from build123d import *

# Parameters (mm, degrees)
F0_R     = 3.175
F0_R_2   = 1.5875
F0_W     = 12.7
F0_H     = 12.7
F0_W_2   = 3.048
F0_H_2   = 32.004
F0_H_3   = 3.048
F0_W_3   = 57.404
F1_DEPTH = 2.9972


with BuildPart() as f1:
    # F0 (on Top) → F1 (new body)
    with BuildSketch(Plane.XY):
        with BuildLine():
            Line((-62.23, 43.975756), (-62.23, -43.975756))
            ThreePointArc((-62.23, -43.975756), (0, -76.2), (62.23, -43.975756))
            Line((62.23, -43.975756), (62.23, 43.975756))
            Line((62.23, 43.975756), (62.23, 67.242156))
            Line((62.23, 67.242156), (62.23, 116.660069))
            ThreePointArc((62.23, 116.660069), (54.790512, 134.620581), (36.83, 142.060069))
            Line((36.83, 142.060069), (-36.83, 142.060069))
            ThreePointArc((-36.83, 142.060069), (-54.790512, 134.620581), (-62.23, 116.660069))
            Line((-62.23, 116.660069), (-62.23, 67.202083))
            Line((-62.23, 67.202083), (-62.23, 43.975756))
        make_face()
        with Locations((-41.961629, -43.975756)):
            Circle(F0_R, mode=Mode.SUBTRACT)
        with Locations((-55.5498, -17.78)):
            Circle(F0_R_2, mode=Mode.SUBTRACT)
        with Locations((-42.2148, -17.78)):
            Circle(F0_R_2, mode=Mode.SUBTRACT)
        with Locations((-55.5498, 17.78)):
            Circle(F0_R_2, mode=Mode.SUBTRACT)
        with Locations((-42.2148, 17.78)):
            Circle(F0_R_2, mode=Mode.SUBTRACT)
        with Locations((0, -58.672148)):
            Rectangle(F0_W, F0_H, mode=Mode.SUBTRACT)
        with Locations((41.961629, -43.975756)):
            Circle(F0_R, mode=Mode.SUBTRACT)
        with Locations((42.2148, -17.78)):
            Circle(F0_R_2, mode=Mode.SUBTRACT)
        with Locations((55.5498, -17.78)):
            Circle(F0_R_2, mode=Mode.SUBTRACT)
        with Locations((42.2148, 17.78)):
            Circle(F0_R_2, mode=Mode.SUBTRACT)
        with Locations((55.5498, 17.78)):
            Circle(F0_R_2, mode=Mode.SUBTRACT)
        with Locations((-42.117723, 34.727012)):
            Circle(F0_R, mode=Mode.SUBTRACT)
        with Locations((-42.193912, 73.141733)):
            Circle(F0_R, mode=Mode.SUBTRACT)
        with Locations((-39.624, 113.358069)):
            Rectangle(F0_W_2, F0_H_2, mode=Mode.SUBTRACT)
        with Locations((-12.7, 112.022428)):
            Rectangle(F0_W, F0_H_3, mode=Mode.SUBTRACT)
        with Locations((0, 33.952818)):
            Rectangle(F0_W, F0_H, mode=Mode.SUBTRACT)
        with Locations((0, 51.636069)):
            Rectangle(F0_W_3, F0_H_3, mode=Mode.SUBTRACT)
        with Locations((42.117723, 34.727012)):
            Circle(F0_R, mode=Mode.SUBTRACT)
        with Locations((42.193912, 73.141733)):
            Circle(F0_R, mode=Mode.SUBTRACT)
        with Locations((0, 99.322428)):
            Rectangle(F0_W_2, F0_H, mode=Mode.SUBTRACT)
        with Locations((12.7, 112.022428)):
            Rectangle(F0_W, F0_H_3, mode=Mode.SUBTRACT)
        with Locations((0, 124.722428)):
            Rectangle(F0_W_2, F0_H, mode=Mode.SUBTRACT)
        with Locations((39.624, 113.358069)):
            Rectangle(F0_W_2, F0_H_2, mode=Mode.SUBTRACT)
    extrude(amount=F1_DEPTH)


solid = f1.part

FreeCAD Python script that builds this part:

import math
import FreeCAD as App
import Part
import Sketcher
Q = App.Units.Quantity

doc = App.newDocument("Part")
body = doc.addObject("PartDesign::Body", "Body")

sketch1 = body.newObject("Sketcher::SketchObject", "Sketch")
sketch1.AttachmentSupport = (doc.getObject("XY_Plane"), [""])
sketch1.MapMode = "FlatFace"
sketch1.addGeometry(Part.ArcOfCircle(Part.Circle(App.Vector(0, 0, 0), App.Vector(0, 0, 1), 76.2), math.radians(-145), math.radians(-35)), False)
sketch1.addGeometry(Part.LineSegment(App.Vector(62.2, -44, 0), App.Vector(62.2, 116.7, 0)), False)
sketch1.addGeometry(Part.ArcOfCircle(Part.Circle(App.Vector(36.8, 116.7, 0), App.Vector(0, 0, 1), 25.4), math.radians(0), math.radians(90)), False)
sketch1.addGeometry(Part.LineSegment(App.Vector(36.8, 142.1, 0), App.Vector(-36.8, 142.1, 0)), False)
sketch1.addGeometry(Part.ArcOfCircle(Part.Circle(App.Vector(-36.8, 116.7, 0), App.Vector(0, 0, 1), 25.4), math.radians(90), math.radians(180)), False)
sketch1.addGeometry(Part.LineSegment(App.Vector(-62.2, 116.7, 0), App.Vector(-62.2, -44, 0)), False)
sketch1.addGeometry(Part.Circle(App.Vector(-42, -44, 0), App.Vector(0, 0, 1), 3.2), False)
sketch1.addGeometry(Part.Circle(App.Vector(-55.5, -17.8, 0), App.Vector(0, 0, 1), 1.6), False)
sketch1.addGeometry(Part.Circle(App.Vector(-42.2, -17.8, 0), App.Vector(0, 0, 1), 1.6), False)
sketch1.addGeometry(Part.Circle(App.Vector(-55.5, 17.8, 0), App.Vector(0, 0, 1), 1.6), False)
sketch1.addGeometry(Part.Circle(App.Vector(-42.2, 17.8, 0), App.Vector(0, 0, 1), 1.6), False)
sketch1.addGeometry(Part.LineSegment(App.Vector(6.3, -65, 0), App.Vector(-6.3, -65, 0)), False)
sketch1.addGeometry(Part.LineSegment(App.Vector(-6.3, -65, 0), App.Vector(-6.3, -52.3, 0)), False)
sketch1.addGeometry(Part.LineSegment(App.Vector(-6.3, -52.3, 0), App.Vector(6.3, -52.3, 0)), False)
sketch1.addGeometry(Part.LineSegment(App.Vector(6.3, -52.3, 0), App.Vector(6.3, -65, 0)), False)
sketch1.addGeometry(Part.Circle(App.Vector(42, -44, 0), App.Vector(0, 0, 1), 3.2), False)
sketch1.addGeometry(Part.Circle(App.Vector(42.2, -17.8, 0), App.Vector(0, 0, 1), 1.6), False)
sketch1.addGeometry(Part.Circle(App.Vector(55.5, -17.8, 0), App.Vector(0, 0, 1), 1.6), False)
sketch1.addGeometry(Part.Circle(App.Vector(42.2, 17.8, 0), App.Vector(0, 0, 1), 1.6), False)
sketch1.addGeometry(Part.Circle(App.Vector(55.5, 17.8, 0), App.Vector(0, 0, 1), 1.6), False)
sketch1.addGeometry(Part.Circle(App.Vector(-42.1, 34.7, 0), App.Vector(0, 0, 1), 3.2), False)
sketch1.addGeometry(Part.Circle(App.Vector(-42.2, 73.1, 0), App.Vector(0, 0, 1), 3.2), False)
sketch1.addGeometry(Part.LineSegment(App.Vector(-38.1, 97.4, 0), App.Vector(-41.1, 97.4, 0)), False)
sketch1.addGeometry(Part.LineSegment(App.Vector(-41.1, 97.4, 0), App.Vector(-41.1, 129.4, 0)), False)
sketch1.addGeometry(Part.LineSegment(App.Vector(-41.1, 129.4, 0), App.Vector(-38.1, 129.4, 0)), False)
sketch1.addGeometry(Part.LineSegment(App.Vector(-38.1, 129.4, 0), App.Vector(-38.1, 97.4, 0)), False)
sketch1.addGeometry(Part.LineSegment(App.Vector(-6.3, 110.5, 0), App.Vector(-19.1, 110.5, 0)), False)
sketch1.addGeometry(Part.LineSegment(App.Vector(-19.1, 110.5, 0), App.Vector(-19.1, 113.5, 0)), False)
sketch1.addGeometry(Part.LineSegment(App.Vector(-19.1, 113.5, 0), App.Vector(-6.3, 113.5, 0)), False)
sketch1.addGeometry(Part.LineSegment(App.Vector(-6.3, 113.5, 0), App.Vector(-6.3, 110.5, 0)), False)
sketch1.addGeometry(Part.LineSegment(App.Vector(6.3, 27.6, 0), App.Vector(-6.3, 27.6, 0)), False)
sketch1.addGeometry(Part.LineSegment(App.Vector(-6.3, 27.6, 0), App.Vector(-6.3, 40.3, 0)), False)
sketch1.addGeometry(Part.LineSegment(App.Vector(-6.3, 40.3, 0), App.Vector(6.3, 40.3, 0)), False)
sketch1.addGeometry(Part.LineSegment(App.Vector(6.3, 40.3, 0), App.Vector(6.3, 27.6, 0)), False)
sketch1.addGeometry(Part.LineSegment(App.Vector(28.7, 50.1, 0), App.Vector(-28.7, 50.1, 0)), False)
sketch1.addGeometry(Part.LineSegment(App.Vector(-28.7, 50.1, 0), App.Vector(-28.7, 53.2, 0)), False)
sketch1.addGeometry(Part.LineSegment(App.Vector(-28.7, 53.2, 0), App.Vector(28.7, 53.2, 0)), False)
sketch1.addGeometry(Part.LineSegment(App.Vector(28.7, 53.2, 0), App.Vector(28.7, 50.1, 0)), False)
sketch1.addGeometry(Part.Circle(App.Vector(42.1, 34.7, 0), App.Vector(0, 0, 1), 3.2), False)
sketch1.addGeometry(Part.Circle(App.Vector(42.2, 73.1, 0), App.Vector(0, 0, 1), 3.2), False)
sketch1.addGeometry(Part.LineSegment(App.Vector(1.5, 93, 0), App.Vector(-1.5, 93, 0)), False)
sketch1.addGeometry(Part.LineSegment(App.Vector(-1.5, 93, 0), App.Vector(-1.5, 105.7, 0)), False)
sketch1.addGeometry(Part.LineSegment(App.Vector(-1.5, 105.7, 0), App.Vector(1.5, 105.7, 0)), False)
sketch1.addGeometry(Part.LineSegment(App.Vector(1.5, 105.7, 0), App.Vector(1.5, 93, 0)), False)
sketch1.addGeometry(Part.LineSegment(App.Vector(19.1, 110.5, 0), App.Vector(6.3, 110.5, 0)), False)
sketch1.addGeometry(Part.LineSegment(App.Vector(6.3, 110.5, 0), App.Vector(6.3, 113.5, 0)), False)
sketch1.addGeometry(Part.LineSegment(App.Vector(6.3, 113.5, 0), App.Vector(19.1, 113.5, 0)), False)
sketch1.addGeometry(Part.LineSegment(App.Vector(19.1, 113.5, 0), App.Vector(19.1, 110.5, 0)), False)
sketch1.addGeometry(Part.LineSegment(App.Vector(1.5, 118.4, 0), App.Vector(-1.5, 118.4, 0)), False)
sketch1.addGeometry(Part.LineSegment(App.Vector(-1.5, 118.4, 0), App.Vector(-1.5, 131.1, 0)), False)
sketch1.addGeometry(Part.LineSegment(App.Vector(-1.5, 131.1, 0), App.Vector(1.5, 131.1, 0)), False)
sketch1.addGeometry(Part.LineSegment(App.Vector(1.5, 131.1, 0), App.Vector(1.5, 118.4, 0)), False)
sketch1.addGeometry(Part.LineSegment(App.Vector(41.1, 97.4, 0), App.Vector(38.1, 97.4, 0)), False)
sketch1.addGeometry(Part.LineSegment(App.Vector(38.1, 97.4, 0), App.Vector(38.1, 129.4, 0)), False)
sketch1.addGeometry(Part.LineSegment(App.Vector(38.1, 129.4, 0), App.Vector(41.1, 129.4, 0)), False)
sketch1.addGeometry(Part.LineSegment(App.Vector(41.1, 129.4, 0), App.Vector(41.1, 97.4, 0)), False)
sketch1.addConstraint(Sketcher.Constraint("Coincident", 0, 2, 1, 1))
sketch1.addConstraint(Sketcher.Constraint("Tangent", 1, 2, 2, 1))
sketch1.addConstraint(Sketcher.Constraint("Tangent", 2, 2, 3, 1))
sketch1.addConstraint(Sketcher.Constraint("Tangent", 3, 2, 4, 1))
sketch1.addConstraint(Sketcher.Constraint("Tangent", 4, 2, 5, 1))
sketch1.addConstraint(Sketcher.Constraint("Coincident", 5, 2, 0, 1))
sketch1.addConstraint(Sketcher.Constraint("Coincident", 11, 2, 12, 1))
sketch1.addConstraint(Sketcher.Constraint("Coincident", 12, 2, 13, 1))
sketch1.addConstraint(Sketcher.Constraint("Coincident", 13, 2, 14, 1))
sketch1.addConstraint(Sketcher.Constraint("Coincident", 14, 2, 11, 1))
sketch1.addConstraint(Sketcher.Constraint("Coincident", 22, 2, 23, 1))
sketch1.addConstraint(Sketcher.Constraint("Coincident", 23, 2, 24, 1))
sketch1.addConstraint(Sketcher.Constraint("Coincident", 24, 2, 25, 1))
sketch1.addConstraint(Sketcher.Constraint("Coincident", 25, 2, 22, 1))
sketch1.addConstraint(Sketcher.Constraint("Coincident", 26, 2, 27, 1))
sketch1.addConstraint(Sketcher.Constraint("Coincident", 27, 2, 28, 1))
sketch1.addConstraint(Sketcher.Constraint("Coincident", 28, 2, 29, 1))
sketch1.addConstraint(Sketcher.Constraint("Coincident", 29, 2, 26, 1))
sketch1.addConstraint(Sketcher.Constraint("Coincident", 30, 2, 31, 1))
sketch1.addConstraint(Sketcher.Constraint("Coincident", 31, 2, 32, 1))
sketch1.addConstraint(Sketcher.Constraint("Coincident", 32, 2, 33, 1))
sketch1.addConstraint(Sketcher.Constraint("Coincident", 33, 2, 30, 1))
sketch1.addConstraint(Sketcher.Constraint("Coincident", 34, 2, 35, 1))
sketch1.addConstraint(Sketcher.Constraint("Coincident", 35, 2, 36, 1))
sketch1.addConstraint(Sketcher.Constraint("Coincident", 36, 2, 37, 1))
sketch1.addConstraint(Sketcher.Constraint("Coincident", 37, 2, 34, 1))
sketch1.addConstraint(Sketcher.Constraint("Coincident", 40, 2, 41, 1))
sketch1.addConstraint(Sketcher.Constraint("Coincident", 41, 2, 42, 1))
sketch1.addConstraint(Sketcher.Constraint("Coincident", 42, 2, 43, 1))
sketch1.addConstraint(Sketcher.Constraint("Coincident", 43, 2, 40, 1))
sketch1.addConstraint(Sketcher.Constraint("Coincident", 44, 2, 45, 1))
sketch1.addConstraint(Sketcher.Constraint("Coincident", 45, 2, 46, 1))
sketch1.addConstraint(Sketcher.Constraint("Coincident", 46, 2, 47, 1))
sketch1.addConstraint(Sketcher.Constraint("Coincident", 47, 2, 44, 1))
sketch1.addConstraint(Sketcher.Constraint("Coincident", 48, 2, 49, 1))
sketch1.addConstraint(Sketcher.Constraint("Coincident", 49, 2, 50, 1))
sketch1.addConstraint(Sketcher.Constraint("Coincident", 50, 2, 51, 1))
sketch1.addConstraint(Sketcher.Constraint("Coincident", 51, 2, 48, 1))
sketch1.addConstraint(Sketcher.Constraint("Coincident", 52, 2, 53, 1))
sketch1.addConstraint(Sketcher.Constraint("Coincident", 53, 2, 54, 1))
sketch1.addConstraint(Sketcher.Constraint("Coincident", 54, 2, 55, 1))
sketch1.addConstraint(Sketcher.Constraint("Coincident", 55, 2, 52, 1))
sketch1.addConstraint(Sketcher.Constraint("Vertical", 1))
sketch1.addConstraint(Sketcher.Constraint("Horizontal", 3))
sketch1.addConstraint(Sketcher.Constraint("Vertical", 5))
sketch1.addConstraint(Sketcher.Constraint("Horizontal", 11))
sketch1.addConstraint(Sketcher.Constraint("Vertical", 12))
sketch1.addConstraint(Sketcher.Constraint("Horizontal", 13))
sketch1.addConstraint(Sketcher.Constraint("Vertical", 14))
sketch1.addConstraint(Sketcher.Constraint("Horizontal", 22))
sketch1.addConstraint(Sketcher.Constraint("Vertical", 23))
sketch1.addConstraint(Sketcher.Constraint("Horizontal", 24))
sketch1.addConstraint(Sketcher.Constraint("Vertical", 25))
sketch1.addConstraint(Sketcher.Constraint("Horizontal", 26))
sketch1.addConstraint(Sketcher.Constraint("Vertical", 27))
sketch1.addConstraint(Sketcher.Constraint("Horizontal", 28))
sketch1.addConstraint(Sketcher.Constraint("Vertical", 29))
sketch1.addConstraint(Sketcher.Constraint("Horizontal", 30))
sketch1.addConstraint(Sketcher.Constraint("Vertical", 31))
sketch1.addConstraint(Sketcher.Constraint("Horizontal", 32))
sketch1.addConstraint(Sketcher.Constraint("Vertical", 33))
sketch1.addConstraint(Sketcher.Constraint("Horizontal", 34))
sketch1.addConstraint(Sketcher.Constraint("Vertical", 35))
sketch1.addConstraint(Sketcher.Constraint("Horizontal", 36))
sketch1.addConstraint(Sketcher.Constraint("Vertical", 37))
sketch1.addConstraint(Sketcher.Constraint("Horizontal", 40))
sketch1.addConstraint(Sketcher.Constraint("Vertical", 41))
sketch1.addConstraint(Sketcher.Constraint("Horizontal", 42))
sketch1.addConstraint(Sketcher.Constraint("Vertical", 43))
sketch1.addConstraint(Sketcher.Constraint("Horizontal", 44))
sketch1.addConstraint(Sketcher.Constraint("Vertical", 45))
sketch1.addConstraint(Sketcher.Constraint("Horizontal", 46))
sketch1.addConstraint(Sketcher.Constraint("Vertical", 47))
sketch1.addConstraint(Sketcher.Constraint("Horizontal", 48))
sketch1.addConstraint(Sketcher.Constraint("Vertical", 49))
sketch1.addConstraint(Sketcher.Constraint("Horizontal", 50))
sketch1.addConstraint(Sketcher.Constraint("Vertical", 51))
sketch1.addConstraint(Sketcher.Constraint("Horizontal", 52))
sketch1.addConstraint(Sketcher.Constraint("Vertical", 53))
sketch1.addConstraint(Sketcher.Constraint("Horizontal", 54))
sketch1.addConstraint(Sketcher.Constraint("Vertical", 55))
sketch1.addConstraint(Sketcher.Constraint("Coincident", 0, 3, -1, 1))
sketch1.addConstraint(Sketcher.Constraint("Equal", 2, 4))
sketch1.addConstraint(Sketcher.Constraint("Equal", 7, 8))
sketch1.addConstraint(Sketcher.Constraint("Equal", 8, 9))
sketch1.addConstraint(Sketcher.Constraint("Equal", 9, 10))
sketch1.addConstraint(Sketcher.Constraint("Equal", 6, 15))
sketch1.addConstraint(Sketcher.Constraint("Equal", 10, 16))
sketch1.addConstraint(Sketcher.Constraint("Equal", 16, 17))
sketch1.addConstraint(Sketcher.Constraint("Equal", 17, 18))
sketch1.addConstraint(Sketcher.Constraint("Equal", 18, 19))
sketch1.addConstraint(Sketcher.Constraint("Equal", 15, 20))
sketch1.addConstraint(Sketcher.Constraint("Equal", 20, 21))
sketch1.addConstraint(Sketcher.Constraint("Equal", 21, 38))
sketch1.addConstraint(Sketcher.Constraint("Equal", 38, 39))
sketch1.addConstraint(Sketcher.Constraint("Symmetric", 10, 3, 16, 3, -1, 1))
sketch1.addConstraint(Sketcher.Constraint("Symmetric", 9, 3, 17, 3, -1, 1))
sketch1.addConstraint(Sketcher.Constraint("Symmetric", 8, 3, 18, 3, -1, 1))
sketch1.addConstraint(Sketcher.Constraint("Symmetric", 7, 3, 19, 3, -1, 1))
sketch1.addConstraint(Sketcher.Constraint("Symmetric", 6, 3, 15, 3, -2))
sketch1.addConstraint(Sketcher.Constraint("Symmetric", 8, 3, 16, 3, -2))
sketch1.addConstraint(Sketcher.Constraint("Symmetric", 7, 3, 17, 3, -2))
sketch1.addConstraint(Sketcher.Constraint("Symmetric", 20, 3, 38, 3, -2))
sketch1.addConstraint(Sketcher.Constraint("Symmetric", 21, 3, 39, 3, -2))
sketch1.addConstraint(Sketcher.Constraint("Symmetric", 29, 2, 44, 2, -2))
sketch1.addConstraint(Sketcher.Constraint("Symmetric", 27, 2, 46, 2, -2))
sketch1.addConstraint(Sketcher.Constraint("Symmetric", 25, 2, 52, 2, -2))
sketch1.addConstraint(Sketcher.Constraint("Symmetric", 23, 2, 54, 2, -2))
sketch1.addConstraint(Sketcher.Constraint("Horizontal", 7, 3, 8, 3))
sketch1.addConstraint(Sketcher.Constraint("Horizontal", 15, 3, 0, 2))
sketch1.addConstraint(Sketcher.Constraint("Horizontal", 0, 2, 5, 2))
sketch1.addConstraint(Sketcher.Constraint("Vertical", 12, 2, 28, 2))
sketch1.addConstraint(Sketcher.Constraint("Vertical", 29, 2, 30, 2))
sketch1.addConstraint(Sketcher.Constraint("Vertical", 14, 2, 32, 2))
sketch1.addConstraint(Sketcher.Constraint("Vertical", 33, 2, 44, 2))
sketch1.addConstraint(Sketcher.Constraint("Vertical", 41, 2, 48, 2))
sketch1.addConstraint(Sketcher.Constraint("Vertical", 43, 2, 50, 2))
sketch1.addConstraint(Sketcher.Constraint("Equal", 13, 26))
sketch1.addConstraint(Sketcher.Constraint("Equal", 24, 40))
sketch1.addConstraint(Sketcher.Constraint("Equal", 46, 12))
sketch1.addConstraint(Sketcher.Constraint("Equal", 54, 27))
sketch1.addConstraint(Sketcher.Constraint("Equal", 14, 31))
sketch1.addConstraint(Sketcher.Constraint("Equal", 29, 35))
sketch1.addConstraint(Sketcher.Constraint("Equal", 33, 41))
sketch1.addConstraint(Sketcher.Constraint("Equal", 43, 49))
sketch1.addConstraint(Sketcher.Constraint("Radius", 0, Q("3 in")))
sketch1.addConstraint(Sketcher.Constraint("Radius", 2, Q("1 in")))
sketch1.addConstraint(Sketcher.Constraint("Diameter", 6, Q("0.25 in")))
sketch1.addConstraint(Sketcher.Constraint("Diameter", 7, Q("0.125 in")))
sketch1.addConstraint(Sketcher.Constraint("DistanceX", 3, 2, 3, 1, Q("2.9 in")))
sketch1.addConstraint(Sketcher.Constraint("DistanceX", 11, 2, 11, 1, Q("0.5 in")))
sketch1.addConstraint(Sketcher.Constraint("DistanceX", 22, 2, 22, 1, Q("0.12 in")))
sketch1.addConstraint(Sketcher.Constraint("DistanceX", 34, 2, 34, 1, Q("2.26 in")))
sketch1.addConstraint(Sketcher.Constraint("DistanceY", 23, 1, 23, 2, Q("1.26 in")))
sketch1.addConstraint(Sketcher.Constraint("DistanceY", 7, 3, -1, 1, Q("0.7 in")))
sketch1.addConstraint(Sketcher.Constraint("DistanceX", 24, 2, -1, 1, Q("1.5 in")))
sketch1.addConstraint(Sketcher.Constraint("DistanceY", 23, 2, 3, 2, Q("0.5 in")))
sketch1.addConstraint(Sketcher.Constraint("DistanceY", 41, 2, 48, 2, Q("0.5 in")))
sketch1.addConstraint(Sketcher.Constraint("DistanceX", 34, 2, -1, 1, Q("1.13 in")))
sketch1.addConstraint(Sketcher.Constraint("DistanceX", 40, 2, -1, 1, Q("0.06 in")))
sketch1.addConstraint(Sketcher.Constraint("DistanceY", 40, 2, 29, 2, Q("0.69 in")))
sketch1.addConstraint(Sketcher.Constraint("DistanceX", 7, 3, -1, 1, Q("2.187 in")))
sketch1.addConstraint(Sketcher.Constraint("DistanceX", 8, 3, -1, 1, Q("1.662 in")))
sketch1.addConstraint(Sketcher.Constraint("DistanceY", 1, 1, 1, 2, 160.635825))
sketch1.addConstraint(Sketcher.Constraint("DistanceX", 6, 3, -1, 1, 41.961629))
sketch1.addConstraint(Sketcher.Constraint("DistanceX", 21, 3, -1, 1, 42.193912))
sketch1.addConstraint(Sketcher.Constraint("DistanceY", 11, 2, -1, 1, 65.022148))
sketch1.addConstraint(Sketcher.Constraint("DistanceY", -1, 1, 26, 2, 110.498428))
sketch1.addConstraint(Sketcher.Constraint("DistanceY", -1, 1, 31, 2, 40.302818))
sketch1.addConstraint(Sketcher.Constraint("DistanceY", -1, 1, 34, 2, 50.112069))
sketch1.addConstraint(Sketcher.Constraint("DistanceY", 0, 3, 20, 3, 34.727012))
sketch1.addConstraint(Sketcher.Constraint("DistanceX", 21, 3, 20, 3, 0.076189))
sketch1.addConstraint(Sketcher.Constraint("DistanceY", 20, 3, 21, 3, 38.414721))
pad1 = body.newObject("PartDesign::Pad", "Pad")
pad1.Profile = sketch1
pad1.Length = Q("0.118 in")

doc.recompute()
